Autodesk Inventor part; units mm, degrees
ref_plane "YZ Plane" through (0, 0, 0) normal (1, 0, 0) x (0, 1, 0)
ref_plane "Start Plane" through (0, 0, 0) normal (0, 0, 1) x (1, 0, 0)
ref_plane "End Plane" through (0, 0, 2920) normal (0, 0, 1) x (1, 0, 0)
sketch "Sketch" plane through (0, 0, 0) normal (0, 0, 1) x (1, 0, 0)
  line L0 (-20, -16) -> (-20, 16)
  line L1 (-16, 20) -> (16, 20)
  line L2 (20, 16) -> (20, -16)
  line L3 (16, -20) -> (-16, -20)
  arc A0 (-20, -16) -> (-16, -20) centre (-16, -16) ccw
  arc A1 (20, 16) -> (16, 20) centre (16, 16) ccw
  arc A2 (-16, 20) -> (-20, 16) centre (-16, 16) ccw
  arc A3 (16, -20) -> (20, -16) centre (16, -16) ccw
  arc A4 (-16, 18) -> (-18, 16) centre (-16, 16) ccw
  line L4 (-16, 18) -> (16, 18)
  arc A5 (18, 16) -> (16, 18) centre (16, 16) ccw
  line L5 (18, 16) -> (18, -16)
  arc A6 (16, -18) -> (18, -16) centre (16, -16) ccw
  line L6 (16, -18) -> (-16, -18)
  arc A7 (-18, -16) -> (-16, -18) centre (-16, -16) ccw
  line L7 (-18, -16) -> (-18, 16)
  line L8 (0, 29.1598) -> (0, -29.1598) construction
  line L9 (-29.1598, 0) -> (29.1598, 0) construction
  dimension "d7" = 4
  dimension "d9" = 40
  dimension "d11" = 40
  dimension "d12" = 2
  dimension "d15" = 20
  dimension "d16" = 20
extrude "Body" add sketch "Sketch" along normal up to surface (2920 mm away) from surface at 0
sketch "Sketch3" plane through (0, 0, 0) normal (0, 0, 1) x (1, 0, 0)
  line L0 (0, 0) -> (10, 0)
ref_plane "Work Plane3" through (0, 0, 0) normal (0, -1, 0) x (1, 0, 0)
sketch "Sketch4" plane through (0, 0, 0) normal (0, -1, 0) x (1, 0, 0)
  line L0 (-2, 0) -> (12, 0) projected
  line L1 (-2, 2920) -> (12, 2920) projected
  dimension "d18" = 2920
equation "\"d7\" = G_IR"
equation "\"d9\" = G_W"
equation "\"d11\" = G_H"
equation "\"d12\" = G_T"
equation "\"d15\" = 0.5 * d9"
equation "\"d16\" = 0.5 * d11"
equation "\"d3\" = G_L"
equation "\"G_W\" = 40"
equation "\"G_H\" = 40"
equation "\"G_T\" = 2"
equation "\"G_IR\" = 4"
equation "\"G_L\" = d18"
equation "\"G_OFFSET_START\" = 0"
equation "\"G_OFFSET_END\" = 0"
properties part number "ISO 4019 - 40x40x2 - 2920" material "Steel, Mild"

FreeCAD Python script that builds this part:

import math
import FreeCAD as App
import Part
import Sketcher
from FreeCAD import Vector

doc = App.newDocument("Part")
params = doc.addObject("Spreadsheet::Sheet", "Params")
for row, (alias, value) in enumerate([
    ("sketch1_radius", "4 mm"),
    ("sketch1_radius2", "2 mm"),
    ("pad1_length", "2920 mm"),
], start=1):
    params.set(f"A{row}", alias)
    params.set(f"B{row}", "=" + value)
    params.setAlias(f"B{row}", alias)

body = doc.addObject("PartDesign::Body", "Body")

sketch1 = body.newObject("Sketcher::SketchObject", "Sketch")
sketch1.AttachmentSupport = (doc.getObject("XY_Plane"), [""])
sketch1.MapMode = "FlatFace"
sketch1.addGeometry([
    Part.LineSegment(Vector(-20, 16, 0), Vector(-20, -16, 0)),
    Part.ArcOfCircle(Part.Circle(Vector(-16, -16, 0), Vector(0, 0, 1), 4), math.radians(180), math.radians(270)),
    Part.LineSegment(Vector(-16, -20, 0), Vector(16, -20, 0)),
    Part.ArcOfCircle(Part.Circle(Vector(16, -16, 0), Vector(0, 0, 1), 4), math.radians(-90), math.radians(0)),
    Part.LineSegment(Vector(20, -16, 0), Vector(20, 16, 0)),
    Part.ArcOfCircle(Part.Circle(Vector(16, 16, 0), Vector(0, 0, 1), 4), math.radians(0), math.radians(90)),
    Part.LineSegment(Vector(16, 20, 0), Vector(-16, 20, 0)),
    Part.ArcOfCircle(Part.Circle(Vector(-16, 16, 0), Vector(0, 0, 1), 4), math.radians(90), math.radians(180)),
    Part.ArcOfCircle(Part.Circle(Vector(-16, 16, 0), Vector(0, 0, 1), 2), math.radians(90), math.radians(180)),
    Part.LineSegment(Vector(-16, 18, 0), Vector(16, 18, 0)),
    Part.ArcOfCircle(Part.Circle(Vector(16, 16, 0), Vector(0, 0, 1), 2), math.radians(0), math.radians(90)),
    Part.LineSegment(Vector(18, 16, 0), Vector(18, -16, 0)),
    Part.ArcOfCircle(Part.Circle(Vector(16, -16, 0), Vector(0, 0, 1), 2), math.radians(-90), math.radians(0)),
    Part.LineSegment(Vector(16, -18, 0), Vector(-16, -18, 0)),
    Part.ArcOfCircle(Part.Circle(Vector(-16, -16, 0), Vector(0, 0, 1), 2), math.radians(180), math.radians(270)),
    Part.LineSegment(Vector(-18, -16, 0), Vector(-18, 16, 0)),
], False)
sketch1.addConstraint([
    Sketcher.Constraint("Tangent", 0, 2, 1, 1),
    Sketcher.Constraint("Tangent", 1, 2, 2, 1),
    Sketcher.Constraint("Tangent", 2, 2, 3, 1),
    Sketcher.Constraint("Tangent", 3, 2, 4, 1),
    Sketcher.Constraint("Tangent", 4, 2, 5, 1),
    Sketcher.Constraint("Tangent", 5, 2, 6, 1),
    Sketcher.Constraint("Tangent", 6, 2, 7, 1),
    Sketcher.Constraint("Tangent", 7, 2, 0, 1),
    Sketcher.Constraint("Tangent", 8, 1, 9, 1),
    Sketcher.Constraint("Tangent", 9, 2, 10, 2),
    Sketcher.Constraint("Tangent", 10, 1, 11, 1),
    Sketcher.Constraint("Tangent", 11, 2, 12, 2),
    Sketcher.Constraint("Tangent", 12, 1, 13, 1),
    Sketcher.Constraint("Tangent", 13, 2, 14, 2),
    Sketcher.Constraint("Tangent", 14, 1, 15, 1),
    Sketcher.Constraint("Tangent", 15, 2, 8, 2),
    Sketcher.Constraint("Vertical", 0),
    Sketcher.Constraint("Horizontal", 2),
    Sketcher.Constraint("Vertical", 4),
    Sketcher.Constraint("Horizontal", 6),
    Sketcher.Constraint("Horizontal", 9),
    Sketcher.Constraint("Vertical", 11),
    Sketcher.Constraint("Horizontal", 13),
    Sketcher.Constraint("Vertical", 15),
    Sketcher.Constraint("Coincident", 8, 3, 7, 3),
    Sketcher.Constraint("Coincident", 10, 3, 5, 3),
    Sketcher.Constraint("Coincident", 12, 3, 3, 3),
    Sketcher.Constraint("Equal", 1, 3),
    Sketcher.Constraint("Equal", 3, 5),
    Sketcher.Constraint("Equal", 5, 7),
    Sketcher.Constraint("Equal", 12, 14),
    Sketcher.Constraint("Symmetric", 1, 3, 5, 3, -1, 1),
    Sketcher.Constraint("Equal", 13, 0),
    Sketcher.Constraint("Radius", 1, 4.0),
    Sketcher.Constraint("Radius", 8, 2.0),
    Sketcher.Constraint("DistanceX", 0, 2, -1, 1, 20.0),
])
sketch1.setExpression("Constraints[33]", "Params.sketch1_radius")
sketch1.setExpression("Constraints[34]", "Params.sketch1_radius2")
pad1 = body.newObject("PartDesign::Pad", "Pad")
pad1.Profile = sketch1
pad1.setExpression("Length", "Params.pad1_length")

doc.recompute()
